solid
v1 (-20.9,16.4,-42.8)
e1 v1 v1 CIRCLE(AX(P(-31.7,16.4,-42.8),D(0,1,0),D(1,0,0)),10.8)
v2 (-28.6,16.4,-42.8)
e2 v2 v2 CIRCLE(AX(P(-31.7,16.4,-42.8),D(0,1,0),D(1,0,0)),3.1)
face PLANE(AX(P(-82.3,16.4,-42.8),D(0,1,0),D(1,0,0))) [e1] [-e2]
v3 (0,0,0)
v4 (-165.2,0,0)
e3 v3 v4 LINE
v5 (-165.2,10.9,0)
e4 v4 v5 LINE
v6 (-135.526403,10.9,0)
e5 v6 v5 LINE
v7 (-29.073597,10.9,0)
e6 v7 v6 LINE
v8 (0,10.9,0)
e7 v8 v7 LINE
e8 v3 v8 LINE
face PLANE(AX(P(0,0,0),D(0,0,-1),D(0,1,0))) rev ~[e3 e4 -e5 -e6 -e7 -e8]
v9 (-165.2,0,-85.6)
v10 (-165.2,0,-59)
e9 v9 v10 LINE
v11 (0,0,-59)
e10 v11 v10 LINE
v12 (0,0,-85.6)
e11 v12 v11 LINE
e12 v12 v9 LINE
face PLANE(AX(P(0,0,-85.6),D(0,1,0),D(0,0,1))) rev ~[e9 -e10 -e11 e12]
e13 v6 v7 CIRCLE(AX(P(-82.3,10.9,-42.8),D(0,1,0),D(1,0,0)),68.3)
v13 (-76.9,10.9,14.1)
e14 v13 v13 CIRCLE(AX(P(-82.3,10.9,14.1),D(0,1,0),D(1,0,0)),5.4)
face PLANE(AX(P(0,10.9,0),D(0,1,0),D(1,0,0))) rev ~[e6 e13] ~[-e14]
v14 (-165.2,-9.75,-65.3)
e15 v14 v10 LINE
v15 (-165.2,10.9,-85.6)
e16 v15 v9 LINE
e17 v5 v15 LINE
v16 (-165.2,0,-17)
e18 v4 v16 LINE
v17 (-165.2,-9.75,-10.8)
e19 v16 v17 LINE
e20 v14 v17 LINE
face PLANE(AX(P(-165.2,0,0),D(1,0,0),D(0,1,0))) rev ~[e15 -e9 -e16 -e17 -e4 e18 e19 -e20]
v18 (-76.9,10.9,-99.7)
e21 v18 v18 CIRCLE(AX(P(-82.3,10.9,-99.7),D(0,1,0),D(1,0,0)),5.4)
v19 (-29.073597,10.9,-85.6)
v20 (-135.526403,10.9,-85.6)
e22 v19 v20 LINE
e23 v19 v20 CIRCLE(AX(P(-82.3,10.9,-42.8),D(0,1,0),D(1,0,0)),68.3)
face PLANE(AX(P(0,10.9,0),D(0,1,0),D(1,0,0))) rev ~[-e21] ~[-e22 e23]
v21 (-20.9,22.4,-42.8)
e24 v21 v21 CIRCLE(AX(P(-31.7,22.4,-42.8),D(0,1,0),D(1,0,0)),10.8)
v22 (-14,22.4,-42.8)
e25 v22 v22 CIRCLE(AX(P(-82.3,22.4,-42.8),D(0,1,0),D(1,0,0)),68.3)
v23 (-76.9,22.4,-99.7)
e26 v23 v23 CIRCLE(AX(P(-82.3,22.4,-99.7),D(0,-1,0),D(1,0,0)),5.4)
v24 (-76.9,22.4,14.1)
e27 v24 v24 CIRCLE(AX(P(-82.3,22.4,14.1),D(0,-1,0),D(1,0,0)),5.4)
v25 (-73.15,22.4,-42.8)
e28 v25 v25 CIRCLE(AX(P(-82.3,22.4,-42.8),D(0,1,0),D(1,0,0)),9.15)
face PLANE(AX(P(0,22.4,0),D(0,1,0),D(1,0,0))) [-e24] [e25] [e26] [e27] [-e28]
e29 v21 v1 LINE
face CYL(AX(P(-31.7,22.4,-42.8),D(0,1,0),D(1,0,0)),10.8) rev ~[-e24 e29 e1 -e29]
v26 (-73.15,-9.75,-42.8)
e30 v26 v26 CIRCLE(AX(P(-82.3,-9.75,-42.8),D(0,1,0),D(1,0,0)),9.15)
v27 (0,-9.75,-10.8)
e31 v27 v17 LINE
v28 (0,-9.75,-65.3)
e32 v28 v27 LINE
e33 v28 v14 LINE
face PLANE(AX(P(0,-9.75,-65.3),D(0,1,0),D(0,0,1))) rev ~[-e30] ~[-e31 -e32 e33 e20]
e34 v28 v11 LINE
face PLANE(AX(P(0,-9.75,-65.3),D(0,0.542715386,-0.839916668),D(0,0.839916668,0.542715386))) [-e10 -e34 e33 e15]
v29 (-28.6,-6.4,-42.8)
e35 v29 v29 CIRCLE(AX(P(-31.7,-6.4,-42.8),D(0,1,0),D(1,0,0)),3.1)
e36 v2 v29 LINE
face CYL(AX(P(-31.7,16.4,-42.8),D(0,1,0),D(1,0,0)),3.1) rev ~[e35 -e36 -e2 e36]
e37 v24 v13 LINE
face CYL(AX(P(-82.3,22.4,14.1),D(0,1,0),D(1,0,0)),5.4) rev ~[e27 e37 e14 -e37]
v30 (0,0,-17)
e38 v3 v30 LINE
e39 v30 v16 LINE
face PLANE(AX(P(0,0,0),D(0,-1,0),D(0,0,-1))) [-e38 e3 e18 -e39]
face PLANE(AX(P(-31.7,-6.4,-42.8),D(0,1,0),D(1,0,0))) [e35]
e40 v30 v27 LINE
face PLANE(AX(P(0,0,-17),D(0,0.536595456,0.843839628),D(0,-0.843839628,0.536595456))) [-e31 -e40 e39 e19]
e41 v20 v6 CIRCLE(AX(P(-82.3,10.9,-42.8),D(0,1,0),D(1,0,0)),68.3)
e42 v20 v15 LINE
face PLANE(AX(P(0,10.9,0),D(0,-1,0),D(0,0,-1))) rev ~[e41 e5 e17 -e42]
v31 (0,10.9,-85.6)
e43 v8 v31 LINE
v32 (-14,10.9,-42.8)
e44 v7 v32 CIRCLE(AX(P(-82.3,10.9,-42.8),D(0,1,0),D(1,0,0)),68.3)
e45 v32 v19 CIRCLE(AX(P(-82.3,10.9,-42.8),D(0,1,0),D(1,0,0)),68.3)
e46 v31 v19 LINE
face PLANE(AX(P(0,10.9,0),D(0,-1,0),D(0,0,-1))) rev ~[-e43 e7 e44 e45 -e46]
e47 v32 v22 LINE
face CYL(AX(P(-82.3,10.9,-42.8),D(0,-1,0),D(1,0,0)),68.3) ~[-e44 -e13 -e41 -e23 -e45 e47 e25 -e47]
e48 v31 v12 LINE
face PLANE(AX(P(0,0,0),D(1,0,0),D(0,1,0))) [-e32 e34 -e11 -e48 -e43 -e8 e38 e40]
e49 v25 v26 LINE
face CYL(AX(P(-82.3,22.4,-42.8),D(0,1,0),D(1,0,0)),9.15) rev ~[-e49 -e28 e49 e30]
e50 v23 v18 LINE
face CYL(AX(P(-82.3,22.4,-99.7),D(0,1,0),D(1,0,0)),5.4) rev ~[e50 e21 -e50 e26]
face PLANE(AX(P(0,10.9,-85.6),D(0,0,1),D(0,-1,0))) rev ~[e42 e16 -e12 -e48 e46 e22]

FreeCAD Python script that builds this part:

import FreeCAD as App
import Part
import Sketcher
Q = App.Units.Quantity


def add_polygon(sketch, points):
    """Adds a closed chain of lines whose ends are joined by coincident constraints."""
    first, n = sketch.GeometryCount, len(points)
    for a, b in zip(points, points[1:] + points[:1]):
        sketch.addGeometry(Part.LineSegment(App.Vector(*a, 0), App.Vector(*b, 0)), False)
    for i in range(n):
        sketch.addConstraint(Sketcher.Constraint("Coincident", first + i, 2, first + (i + 1) % n, 1))

doc = App.newDocument("Part")
body = doc.addObject("PartDesign::Body", "Body")

sketch1 = body.newObject("Sketcher::SketchObject", "Sketch")
sketch1.AttachmentSupport = (doc.getObject("YZ_Plane"), [""])
sketch1.MapMode = "FlatFace"
add_polygon(sketch1, [(10.9, 0), (0, 0), (0, -17), (-9.75, -10.8), (-9.75, -65.3), (0, -59), (0, -85.6), (10.9, -85.6)])
sketch1.addConstraint([
    Sketcher.Constraint("Horizontal", 0),
    Sketcher.Constraint("Vertical", 1),
    Sketcher.Constraint("Vertical", 3),
    Sketcher.Constraint("Vertical", 5),
    Sketcher.Constraint("Horizontal", 6),
    Sketcher.Constraint("Vertical", 7),
    Sketcher.Constraint("Coincident", 0, 2, -1, 1),
    Sketcher.Constraint("PointOnObject", 4, 2, -2),
    Sketcher.Constraint("DistanceY", 1, 2, 1, 1, Q("17 mm")),
    Sketcher.Constraint("DistanceY", 3, 2, 3, 1, Q("54.5 mm")),
    Sketcher.Constraint("DistanceY", 5, 2, 5, 1, Q("26.6 mm")),
    Sketcher.Constraint("DistanceY", 7, 1, 7, 2, Q("85.6 mm")),
    Sketcher.Constraint("DistanceY", 5, 2, 3, 2, Q("20.3 mm")),
    Sketcher.Constraint("DistanceX", 0, 2, 0, 1, Q("10.9 mm")),
    Sketcher.Constraint("DistanceX", 2, 2, -1, 1, Q("9.75 mm")),
])
pad1 = body.newObject("PartDesign::Pad", "Pad")
pad1.Profile = sketch1
pad1.Length = 165.2
pad1.Reversed = True

sketch2 = body.newObject("Sketcher::SketchObject", "Sketch001")
sketch2.AttachmentSupport = (doc.getObject("XZ_Plane"), [""])
sketch2.MapMode = "FlatFace"
sketch2.AttachmentOffset = App.Placement(App.Vector(0, 0, -10.9), App.Rotation())
sketch2.addGeometry(Part.Circle(App.Vector(-82.3, -42.8, 0), App.Vector(0, 0, 1), 68.3), False)
sketch2.addConstraint([
    Sketcher.Constraint("Diameter", 0, Q("136.6 mm")),
    Sketcher.Constraint("DistanceX", 0, 3, -1, 1, Q("82.3 mm")),
    Sketcher.Constraint("DistanceY", 0, 3, -1, 1, Q("42.8 mm")),
])
pad2 = body.newObject("PartDesign::Pad", "Pad001")
pad2.Profile = sketch2
pad2.Length = 11.5
pad2.Reversed = True

sketch3 = body.newObject("Sketcher::SketchObject", "Sketch002")
sketch3.AttachmentSupport = (doc.getObject("XZ_Plane"), [""])
sketch3.MapMode = "FlatFace"
sketch3.AttachmentOffset = App.Placement(App.Vector(0, 0, -22.4), App.Rotation())
sketch3.addGeometry(Part.Circle(App.Vector(-82.3, -42.8, 0), App.Vector(0, 0, 1), 9.15), False)
sketch3.addConstraint([
    Sketcher.Constraint("Diameter", 0, Q("18.3 mm")),
    Sketcher.Constraint("DistanceX", 0, 3, -1, 1, Q("82.3 mm")),
    Sketcher.Constraint("DistanceY", 0, 3, -1, 1, Q("42.8 mm")),
])
pocket1 = body.newObject("PartDesign::Pocket", "Pocket")
pocket1.Profile = sketch3
pocket1.Length = 73.75
pocket1.Reversed = True

sketch4 = body.newObject("Sketcher::SketchObject", "Sketch003")
sketch4.AttachmentSupport = (doc.getObject("XZ_Plane"), [""])
sketch4.MapMode = "FlatFace"
sketch4.AttachmentOffset = App.Placement(App.Vector(0, 0, -22.4), App.Rotation())
sketch4.addGeometry([
    Part.Circle(App.Vector(-82.3, -99.7, 0), App.Vector(0, 0, 1), 5.4),
    Part.Circle(App.Vector(-82.3, 14.1, 0), App.Vector(0, 0, 1), 5.4),
], False)
sketch4.addConstraint([
    Sketcher.Constraint("Equal", 0, 1),
    Sketcher.Constraint("Vertical", 0, 3, 1, 3),
    Sketcher.Constraint("Diameter", 0, Q("10.8 mm")),
    Sketcher.Constraint("DistanceX", 0, 3, -1, 1, Q("82.3 mm")),
    Sketcher.Constraint("DistanceY", 0, 3, -1, 1, Q("99.7 mm")),
    Sketcher.Constraint("DistanceY", -1, 1, 1, 3, Q("14.1 mm")),
])
pocket2 = body.newObject("PartDesign::Pocket", "Pocket001")
pocket2.Profile = sketch4
pocket2.Length = 73.75
pocket2.Reversed = True

sketch5 = body.newObject("Sketcher::SketchObject", "Sketch004")
sketch5.AttachmentSupport = (doc.getObject("XZ_Plane"), [""])
sketch5.MapMode = "FlatFace"
sketch5.AttachmentOffset = App.Placement(App.Vector(0, 0, -22.4), App.Rotation())
sketch5.addGeometry(Part.Circle(App.Vector(-31.7, -42.8, 0), App.Vector(0, 0, 1), 10.8), False)
sketch5.addConstraint([
    Sketcher.Constraint("Diameter", 0, Q("21.6 mm")),
    Sketcher.Constraint("DistanceX", 0, 3, -1, 1, Q("31.7 mm")),
    Sketcher.Constraint("DistanceY", 0, 3, -1, 1, Q("42.8 mm")),
])
pocket3 = body.newObject("PartDesign::Pocket", "Pocket002")
pocket3.Profile = sketch5
pocket3.Length = 6
pocket3.Reversed = True

sketch6 = body.newObject("Sketcher::SketchObject", "Sketch005")
sketch6.AttachmentSupport = (doc.getObject("XZ_Plane"), [""])
sketch6.MapMode = "FlatFace"
sketch6.AttachmentOffset = App.Placement(App.Vector(0, 0, -16.4), App.Rotation())
sketch6.addGeometry(Part.Circle(App.Vector(-31.7, -42.8, 0), App.Vector(0, 0, 1), 3.1), False)
sketch6.addConstraint([
    Sketcher.Constraint("Diameter", 0, Q("6.2 mm")),
    Sketcher.Constraint("DistanceX", 0, 3, -1, 1, Q("31.7 mm")),
    Sketcher.Constraint("DistanceY", 0, 3, -1, 1, Q("42.8 mm")),
])
pocket4 = body.newObject("PartDesign::Pocket", "Pocket003")
pocket4.Profile = sketch6
pocket4.Length = 22.8
pocket4.Reversed = True

doc.recompute()
